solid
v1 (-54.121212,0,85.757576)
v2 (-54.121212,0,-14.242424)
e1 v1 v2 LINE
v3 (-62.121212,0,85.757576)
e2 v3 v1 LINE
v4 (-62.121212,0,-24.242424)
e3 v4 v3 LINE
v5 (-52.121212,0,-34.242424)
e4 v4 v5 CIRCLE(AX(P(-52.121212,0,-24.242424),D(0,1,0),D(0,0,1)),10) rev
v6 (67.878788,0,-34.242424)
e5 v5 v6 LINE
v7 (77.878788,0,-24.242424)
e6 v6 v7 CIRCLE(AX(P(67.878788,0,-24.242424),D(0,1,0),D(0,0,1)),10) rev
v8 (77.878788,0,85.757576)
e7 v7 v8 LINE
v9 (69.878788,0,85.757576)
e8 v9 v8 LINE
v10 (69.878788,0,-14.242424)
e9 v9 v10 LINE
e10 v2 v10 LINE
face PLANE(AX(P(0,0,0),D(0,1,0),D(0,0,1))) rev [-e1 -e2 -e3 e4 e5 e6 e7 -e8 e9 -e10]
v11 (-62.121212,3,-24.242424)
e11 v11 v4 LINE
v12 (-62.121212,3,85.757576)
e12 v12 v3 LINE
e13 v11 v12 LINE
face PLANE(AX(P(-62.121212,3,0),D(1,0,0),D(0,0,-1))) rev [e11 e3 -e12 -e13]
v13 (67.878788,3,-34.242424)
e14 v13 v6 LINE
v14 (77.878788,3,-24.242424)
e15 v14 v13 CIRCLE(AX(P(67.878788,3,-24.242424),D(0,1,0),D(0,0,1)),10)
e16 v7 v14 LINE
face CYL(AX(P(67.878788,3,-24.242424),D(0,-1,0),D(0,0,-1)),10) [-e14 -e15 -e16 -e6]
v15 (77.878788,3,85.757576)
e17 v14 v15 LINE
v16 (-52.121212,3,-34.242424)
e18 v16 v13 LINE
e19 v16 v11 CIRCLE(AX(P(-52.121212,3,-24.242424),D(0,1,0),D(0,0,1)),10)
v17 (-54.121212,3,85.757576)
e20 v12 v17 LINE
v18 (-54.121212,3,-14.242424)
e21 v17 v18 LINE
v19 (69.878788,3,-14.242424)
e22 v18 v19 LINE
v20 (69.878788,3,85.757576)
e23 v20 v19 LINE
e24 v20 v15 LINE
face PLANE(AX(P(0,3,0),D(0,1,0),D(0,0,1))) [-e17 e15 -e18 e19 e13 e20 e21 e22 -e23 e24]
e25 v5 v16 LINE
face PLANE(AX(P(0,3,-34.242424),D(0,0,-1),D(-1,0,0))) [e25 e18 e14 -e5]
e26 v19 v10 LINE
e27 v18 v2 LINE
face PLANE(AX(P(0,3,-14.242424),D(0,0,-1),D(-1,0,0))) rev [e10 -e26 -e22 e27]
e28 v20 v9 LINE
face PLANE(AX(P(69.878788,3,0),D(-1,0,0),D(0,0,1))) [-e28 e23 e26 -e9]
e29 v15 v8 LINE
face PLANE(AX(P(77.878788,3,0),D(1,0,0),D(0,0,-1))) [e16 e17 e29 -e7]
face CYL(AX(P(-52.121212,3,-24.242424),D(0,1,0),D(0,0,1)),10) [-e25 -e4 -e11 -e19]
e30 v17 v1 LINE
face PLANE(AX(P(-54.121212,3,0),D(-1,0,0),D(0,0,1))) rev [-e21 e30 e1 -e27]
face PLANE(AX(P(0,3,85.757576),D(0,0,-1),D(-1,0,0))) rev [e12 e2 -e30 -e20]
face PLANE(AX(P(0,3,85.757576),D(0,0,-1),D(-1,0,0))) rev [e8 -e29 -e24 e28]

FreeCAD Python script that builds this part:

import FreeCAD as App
import Part
import Sketcher

V = App.Vector


def edges_at(feature, points):
    """Names of the edges that pass closest to the given points."""
    edges = feature.Shape.Edges
    near = lambda p: min(range(len(edges)), key=lambda i: edges[i].distToShape(Part.Vertex(*p))[0])
    return sorted({f"Edge{near(p) + 1}" for p in points})


def add_polygon(sketch, points):
    """Adds a closed chain of lines whose ends are joined by coincident constraints."""
    first, n = sketch.GeometryCount, len(points)
    for a, b in zip(points, points[1:] + points[:1]):
        sketch.addGeometry(Part.LineSegment(App.Vector(*a, 0), App.Vector(*b, 0)), False)
    for i in range(n):
        sketch.addConstraint(Sketcher.Constraint("Coincident", first + i, 2, first + (i + 1) % n, 1))

doc = App.newDocument("Part")
body = doc.addObject("PartDesign::Body", "Body")

# Sketch on XZ plane
sketch1 = body.newObject("Sketcher::SketchObject", "Sketch")
sketch1.AttachmentSupport = (doc.getObject("XZ_Plane"), [""])
sketch1.MapMode = "FlatFace"
add_polygon(sketch1, [(78, -34), (-62, -34), (-62, 86), (-54, 86), (-54, -14), (70, -14), (70, 86), (78, 86)])  # lines 0-7
sketch1.addConstraint(Sketcher.Constraint("Horizontal", 0))
sketch1.addConstraint(Sketcher.Constraint("Vertical", 1))
sketch1.addConstraint(Sketcher.Constraint("Horizontal", 2))
sketch1.addConstraint(Sketcher.Constraint("Vertical", 3))
sketch1.addConstraint(Sketcher.Constraint("Horizontal", 4))
sketch1.addConstraint(Sketcher.Constraint("Vertical", 5))
sketch1.addConstraint(Sketcher.Constraint("Horizontal", 6))
sketch1.addConstraint(Sketcher.Constraint("Vertical", 7))
sketch1.addConstraint(Sketcher.Constraint("Horizontal", 2, 2, 5, 2))
sketch1.addConstraint(Sketcher.Constraint("Equal", 2, 6))
sketch1.addConstraint(Sketcher.Constraint("DistanceX", 0, 2, 0, 1, 140.0))
sketch1.addConstraint(Sketcher.Constraint("DistanceX", 2, 1, 2, 2, 8.0))
sketch1.addConstraint(Sketcher.Constraint("DistanceY", 1, 1, 1, 2, 120.0))
sketch1.addConstraint(Sketcher.Constraint("DistanceY", 3, 2, 3, 1, 100.0))
sketch1.addConstraint(Sketcher.Constraint("DistanceX", 0, 2, -1, 1, 62.121212))
sketch1.addConstraint(Sketcher.Constraint("DistanceY", 0, 2, -1, 1, 34.242424))
pad1 = body.newObject("PartDesign::Pad", "Pad")
pad1.Profile = sketch1
pad1.Length = 3
pad1.Reversed = True
doc.recompute()

fillet = body.newObject("PartDesign::Fillet", "Fillet")
fillet.Base = (pad1, edges_at(pad1, [(-62.121, 1.5, -34.242), (77.879, 1.5, -34.242)]))
fillet.Radius = 10

doc.recompute()
